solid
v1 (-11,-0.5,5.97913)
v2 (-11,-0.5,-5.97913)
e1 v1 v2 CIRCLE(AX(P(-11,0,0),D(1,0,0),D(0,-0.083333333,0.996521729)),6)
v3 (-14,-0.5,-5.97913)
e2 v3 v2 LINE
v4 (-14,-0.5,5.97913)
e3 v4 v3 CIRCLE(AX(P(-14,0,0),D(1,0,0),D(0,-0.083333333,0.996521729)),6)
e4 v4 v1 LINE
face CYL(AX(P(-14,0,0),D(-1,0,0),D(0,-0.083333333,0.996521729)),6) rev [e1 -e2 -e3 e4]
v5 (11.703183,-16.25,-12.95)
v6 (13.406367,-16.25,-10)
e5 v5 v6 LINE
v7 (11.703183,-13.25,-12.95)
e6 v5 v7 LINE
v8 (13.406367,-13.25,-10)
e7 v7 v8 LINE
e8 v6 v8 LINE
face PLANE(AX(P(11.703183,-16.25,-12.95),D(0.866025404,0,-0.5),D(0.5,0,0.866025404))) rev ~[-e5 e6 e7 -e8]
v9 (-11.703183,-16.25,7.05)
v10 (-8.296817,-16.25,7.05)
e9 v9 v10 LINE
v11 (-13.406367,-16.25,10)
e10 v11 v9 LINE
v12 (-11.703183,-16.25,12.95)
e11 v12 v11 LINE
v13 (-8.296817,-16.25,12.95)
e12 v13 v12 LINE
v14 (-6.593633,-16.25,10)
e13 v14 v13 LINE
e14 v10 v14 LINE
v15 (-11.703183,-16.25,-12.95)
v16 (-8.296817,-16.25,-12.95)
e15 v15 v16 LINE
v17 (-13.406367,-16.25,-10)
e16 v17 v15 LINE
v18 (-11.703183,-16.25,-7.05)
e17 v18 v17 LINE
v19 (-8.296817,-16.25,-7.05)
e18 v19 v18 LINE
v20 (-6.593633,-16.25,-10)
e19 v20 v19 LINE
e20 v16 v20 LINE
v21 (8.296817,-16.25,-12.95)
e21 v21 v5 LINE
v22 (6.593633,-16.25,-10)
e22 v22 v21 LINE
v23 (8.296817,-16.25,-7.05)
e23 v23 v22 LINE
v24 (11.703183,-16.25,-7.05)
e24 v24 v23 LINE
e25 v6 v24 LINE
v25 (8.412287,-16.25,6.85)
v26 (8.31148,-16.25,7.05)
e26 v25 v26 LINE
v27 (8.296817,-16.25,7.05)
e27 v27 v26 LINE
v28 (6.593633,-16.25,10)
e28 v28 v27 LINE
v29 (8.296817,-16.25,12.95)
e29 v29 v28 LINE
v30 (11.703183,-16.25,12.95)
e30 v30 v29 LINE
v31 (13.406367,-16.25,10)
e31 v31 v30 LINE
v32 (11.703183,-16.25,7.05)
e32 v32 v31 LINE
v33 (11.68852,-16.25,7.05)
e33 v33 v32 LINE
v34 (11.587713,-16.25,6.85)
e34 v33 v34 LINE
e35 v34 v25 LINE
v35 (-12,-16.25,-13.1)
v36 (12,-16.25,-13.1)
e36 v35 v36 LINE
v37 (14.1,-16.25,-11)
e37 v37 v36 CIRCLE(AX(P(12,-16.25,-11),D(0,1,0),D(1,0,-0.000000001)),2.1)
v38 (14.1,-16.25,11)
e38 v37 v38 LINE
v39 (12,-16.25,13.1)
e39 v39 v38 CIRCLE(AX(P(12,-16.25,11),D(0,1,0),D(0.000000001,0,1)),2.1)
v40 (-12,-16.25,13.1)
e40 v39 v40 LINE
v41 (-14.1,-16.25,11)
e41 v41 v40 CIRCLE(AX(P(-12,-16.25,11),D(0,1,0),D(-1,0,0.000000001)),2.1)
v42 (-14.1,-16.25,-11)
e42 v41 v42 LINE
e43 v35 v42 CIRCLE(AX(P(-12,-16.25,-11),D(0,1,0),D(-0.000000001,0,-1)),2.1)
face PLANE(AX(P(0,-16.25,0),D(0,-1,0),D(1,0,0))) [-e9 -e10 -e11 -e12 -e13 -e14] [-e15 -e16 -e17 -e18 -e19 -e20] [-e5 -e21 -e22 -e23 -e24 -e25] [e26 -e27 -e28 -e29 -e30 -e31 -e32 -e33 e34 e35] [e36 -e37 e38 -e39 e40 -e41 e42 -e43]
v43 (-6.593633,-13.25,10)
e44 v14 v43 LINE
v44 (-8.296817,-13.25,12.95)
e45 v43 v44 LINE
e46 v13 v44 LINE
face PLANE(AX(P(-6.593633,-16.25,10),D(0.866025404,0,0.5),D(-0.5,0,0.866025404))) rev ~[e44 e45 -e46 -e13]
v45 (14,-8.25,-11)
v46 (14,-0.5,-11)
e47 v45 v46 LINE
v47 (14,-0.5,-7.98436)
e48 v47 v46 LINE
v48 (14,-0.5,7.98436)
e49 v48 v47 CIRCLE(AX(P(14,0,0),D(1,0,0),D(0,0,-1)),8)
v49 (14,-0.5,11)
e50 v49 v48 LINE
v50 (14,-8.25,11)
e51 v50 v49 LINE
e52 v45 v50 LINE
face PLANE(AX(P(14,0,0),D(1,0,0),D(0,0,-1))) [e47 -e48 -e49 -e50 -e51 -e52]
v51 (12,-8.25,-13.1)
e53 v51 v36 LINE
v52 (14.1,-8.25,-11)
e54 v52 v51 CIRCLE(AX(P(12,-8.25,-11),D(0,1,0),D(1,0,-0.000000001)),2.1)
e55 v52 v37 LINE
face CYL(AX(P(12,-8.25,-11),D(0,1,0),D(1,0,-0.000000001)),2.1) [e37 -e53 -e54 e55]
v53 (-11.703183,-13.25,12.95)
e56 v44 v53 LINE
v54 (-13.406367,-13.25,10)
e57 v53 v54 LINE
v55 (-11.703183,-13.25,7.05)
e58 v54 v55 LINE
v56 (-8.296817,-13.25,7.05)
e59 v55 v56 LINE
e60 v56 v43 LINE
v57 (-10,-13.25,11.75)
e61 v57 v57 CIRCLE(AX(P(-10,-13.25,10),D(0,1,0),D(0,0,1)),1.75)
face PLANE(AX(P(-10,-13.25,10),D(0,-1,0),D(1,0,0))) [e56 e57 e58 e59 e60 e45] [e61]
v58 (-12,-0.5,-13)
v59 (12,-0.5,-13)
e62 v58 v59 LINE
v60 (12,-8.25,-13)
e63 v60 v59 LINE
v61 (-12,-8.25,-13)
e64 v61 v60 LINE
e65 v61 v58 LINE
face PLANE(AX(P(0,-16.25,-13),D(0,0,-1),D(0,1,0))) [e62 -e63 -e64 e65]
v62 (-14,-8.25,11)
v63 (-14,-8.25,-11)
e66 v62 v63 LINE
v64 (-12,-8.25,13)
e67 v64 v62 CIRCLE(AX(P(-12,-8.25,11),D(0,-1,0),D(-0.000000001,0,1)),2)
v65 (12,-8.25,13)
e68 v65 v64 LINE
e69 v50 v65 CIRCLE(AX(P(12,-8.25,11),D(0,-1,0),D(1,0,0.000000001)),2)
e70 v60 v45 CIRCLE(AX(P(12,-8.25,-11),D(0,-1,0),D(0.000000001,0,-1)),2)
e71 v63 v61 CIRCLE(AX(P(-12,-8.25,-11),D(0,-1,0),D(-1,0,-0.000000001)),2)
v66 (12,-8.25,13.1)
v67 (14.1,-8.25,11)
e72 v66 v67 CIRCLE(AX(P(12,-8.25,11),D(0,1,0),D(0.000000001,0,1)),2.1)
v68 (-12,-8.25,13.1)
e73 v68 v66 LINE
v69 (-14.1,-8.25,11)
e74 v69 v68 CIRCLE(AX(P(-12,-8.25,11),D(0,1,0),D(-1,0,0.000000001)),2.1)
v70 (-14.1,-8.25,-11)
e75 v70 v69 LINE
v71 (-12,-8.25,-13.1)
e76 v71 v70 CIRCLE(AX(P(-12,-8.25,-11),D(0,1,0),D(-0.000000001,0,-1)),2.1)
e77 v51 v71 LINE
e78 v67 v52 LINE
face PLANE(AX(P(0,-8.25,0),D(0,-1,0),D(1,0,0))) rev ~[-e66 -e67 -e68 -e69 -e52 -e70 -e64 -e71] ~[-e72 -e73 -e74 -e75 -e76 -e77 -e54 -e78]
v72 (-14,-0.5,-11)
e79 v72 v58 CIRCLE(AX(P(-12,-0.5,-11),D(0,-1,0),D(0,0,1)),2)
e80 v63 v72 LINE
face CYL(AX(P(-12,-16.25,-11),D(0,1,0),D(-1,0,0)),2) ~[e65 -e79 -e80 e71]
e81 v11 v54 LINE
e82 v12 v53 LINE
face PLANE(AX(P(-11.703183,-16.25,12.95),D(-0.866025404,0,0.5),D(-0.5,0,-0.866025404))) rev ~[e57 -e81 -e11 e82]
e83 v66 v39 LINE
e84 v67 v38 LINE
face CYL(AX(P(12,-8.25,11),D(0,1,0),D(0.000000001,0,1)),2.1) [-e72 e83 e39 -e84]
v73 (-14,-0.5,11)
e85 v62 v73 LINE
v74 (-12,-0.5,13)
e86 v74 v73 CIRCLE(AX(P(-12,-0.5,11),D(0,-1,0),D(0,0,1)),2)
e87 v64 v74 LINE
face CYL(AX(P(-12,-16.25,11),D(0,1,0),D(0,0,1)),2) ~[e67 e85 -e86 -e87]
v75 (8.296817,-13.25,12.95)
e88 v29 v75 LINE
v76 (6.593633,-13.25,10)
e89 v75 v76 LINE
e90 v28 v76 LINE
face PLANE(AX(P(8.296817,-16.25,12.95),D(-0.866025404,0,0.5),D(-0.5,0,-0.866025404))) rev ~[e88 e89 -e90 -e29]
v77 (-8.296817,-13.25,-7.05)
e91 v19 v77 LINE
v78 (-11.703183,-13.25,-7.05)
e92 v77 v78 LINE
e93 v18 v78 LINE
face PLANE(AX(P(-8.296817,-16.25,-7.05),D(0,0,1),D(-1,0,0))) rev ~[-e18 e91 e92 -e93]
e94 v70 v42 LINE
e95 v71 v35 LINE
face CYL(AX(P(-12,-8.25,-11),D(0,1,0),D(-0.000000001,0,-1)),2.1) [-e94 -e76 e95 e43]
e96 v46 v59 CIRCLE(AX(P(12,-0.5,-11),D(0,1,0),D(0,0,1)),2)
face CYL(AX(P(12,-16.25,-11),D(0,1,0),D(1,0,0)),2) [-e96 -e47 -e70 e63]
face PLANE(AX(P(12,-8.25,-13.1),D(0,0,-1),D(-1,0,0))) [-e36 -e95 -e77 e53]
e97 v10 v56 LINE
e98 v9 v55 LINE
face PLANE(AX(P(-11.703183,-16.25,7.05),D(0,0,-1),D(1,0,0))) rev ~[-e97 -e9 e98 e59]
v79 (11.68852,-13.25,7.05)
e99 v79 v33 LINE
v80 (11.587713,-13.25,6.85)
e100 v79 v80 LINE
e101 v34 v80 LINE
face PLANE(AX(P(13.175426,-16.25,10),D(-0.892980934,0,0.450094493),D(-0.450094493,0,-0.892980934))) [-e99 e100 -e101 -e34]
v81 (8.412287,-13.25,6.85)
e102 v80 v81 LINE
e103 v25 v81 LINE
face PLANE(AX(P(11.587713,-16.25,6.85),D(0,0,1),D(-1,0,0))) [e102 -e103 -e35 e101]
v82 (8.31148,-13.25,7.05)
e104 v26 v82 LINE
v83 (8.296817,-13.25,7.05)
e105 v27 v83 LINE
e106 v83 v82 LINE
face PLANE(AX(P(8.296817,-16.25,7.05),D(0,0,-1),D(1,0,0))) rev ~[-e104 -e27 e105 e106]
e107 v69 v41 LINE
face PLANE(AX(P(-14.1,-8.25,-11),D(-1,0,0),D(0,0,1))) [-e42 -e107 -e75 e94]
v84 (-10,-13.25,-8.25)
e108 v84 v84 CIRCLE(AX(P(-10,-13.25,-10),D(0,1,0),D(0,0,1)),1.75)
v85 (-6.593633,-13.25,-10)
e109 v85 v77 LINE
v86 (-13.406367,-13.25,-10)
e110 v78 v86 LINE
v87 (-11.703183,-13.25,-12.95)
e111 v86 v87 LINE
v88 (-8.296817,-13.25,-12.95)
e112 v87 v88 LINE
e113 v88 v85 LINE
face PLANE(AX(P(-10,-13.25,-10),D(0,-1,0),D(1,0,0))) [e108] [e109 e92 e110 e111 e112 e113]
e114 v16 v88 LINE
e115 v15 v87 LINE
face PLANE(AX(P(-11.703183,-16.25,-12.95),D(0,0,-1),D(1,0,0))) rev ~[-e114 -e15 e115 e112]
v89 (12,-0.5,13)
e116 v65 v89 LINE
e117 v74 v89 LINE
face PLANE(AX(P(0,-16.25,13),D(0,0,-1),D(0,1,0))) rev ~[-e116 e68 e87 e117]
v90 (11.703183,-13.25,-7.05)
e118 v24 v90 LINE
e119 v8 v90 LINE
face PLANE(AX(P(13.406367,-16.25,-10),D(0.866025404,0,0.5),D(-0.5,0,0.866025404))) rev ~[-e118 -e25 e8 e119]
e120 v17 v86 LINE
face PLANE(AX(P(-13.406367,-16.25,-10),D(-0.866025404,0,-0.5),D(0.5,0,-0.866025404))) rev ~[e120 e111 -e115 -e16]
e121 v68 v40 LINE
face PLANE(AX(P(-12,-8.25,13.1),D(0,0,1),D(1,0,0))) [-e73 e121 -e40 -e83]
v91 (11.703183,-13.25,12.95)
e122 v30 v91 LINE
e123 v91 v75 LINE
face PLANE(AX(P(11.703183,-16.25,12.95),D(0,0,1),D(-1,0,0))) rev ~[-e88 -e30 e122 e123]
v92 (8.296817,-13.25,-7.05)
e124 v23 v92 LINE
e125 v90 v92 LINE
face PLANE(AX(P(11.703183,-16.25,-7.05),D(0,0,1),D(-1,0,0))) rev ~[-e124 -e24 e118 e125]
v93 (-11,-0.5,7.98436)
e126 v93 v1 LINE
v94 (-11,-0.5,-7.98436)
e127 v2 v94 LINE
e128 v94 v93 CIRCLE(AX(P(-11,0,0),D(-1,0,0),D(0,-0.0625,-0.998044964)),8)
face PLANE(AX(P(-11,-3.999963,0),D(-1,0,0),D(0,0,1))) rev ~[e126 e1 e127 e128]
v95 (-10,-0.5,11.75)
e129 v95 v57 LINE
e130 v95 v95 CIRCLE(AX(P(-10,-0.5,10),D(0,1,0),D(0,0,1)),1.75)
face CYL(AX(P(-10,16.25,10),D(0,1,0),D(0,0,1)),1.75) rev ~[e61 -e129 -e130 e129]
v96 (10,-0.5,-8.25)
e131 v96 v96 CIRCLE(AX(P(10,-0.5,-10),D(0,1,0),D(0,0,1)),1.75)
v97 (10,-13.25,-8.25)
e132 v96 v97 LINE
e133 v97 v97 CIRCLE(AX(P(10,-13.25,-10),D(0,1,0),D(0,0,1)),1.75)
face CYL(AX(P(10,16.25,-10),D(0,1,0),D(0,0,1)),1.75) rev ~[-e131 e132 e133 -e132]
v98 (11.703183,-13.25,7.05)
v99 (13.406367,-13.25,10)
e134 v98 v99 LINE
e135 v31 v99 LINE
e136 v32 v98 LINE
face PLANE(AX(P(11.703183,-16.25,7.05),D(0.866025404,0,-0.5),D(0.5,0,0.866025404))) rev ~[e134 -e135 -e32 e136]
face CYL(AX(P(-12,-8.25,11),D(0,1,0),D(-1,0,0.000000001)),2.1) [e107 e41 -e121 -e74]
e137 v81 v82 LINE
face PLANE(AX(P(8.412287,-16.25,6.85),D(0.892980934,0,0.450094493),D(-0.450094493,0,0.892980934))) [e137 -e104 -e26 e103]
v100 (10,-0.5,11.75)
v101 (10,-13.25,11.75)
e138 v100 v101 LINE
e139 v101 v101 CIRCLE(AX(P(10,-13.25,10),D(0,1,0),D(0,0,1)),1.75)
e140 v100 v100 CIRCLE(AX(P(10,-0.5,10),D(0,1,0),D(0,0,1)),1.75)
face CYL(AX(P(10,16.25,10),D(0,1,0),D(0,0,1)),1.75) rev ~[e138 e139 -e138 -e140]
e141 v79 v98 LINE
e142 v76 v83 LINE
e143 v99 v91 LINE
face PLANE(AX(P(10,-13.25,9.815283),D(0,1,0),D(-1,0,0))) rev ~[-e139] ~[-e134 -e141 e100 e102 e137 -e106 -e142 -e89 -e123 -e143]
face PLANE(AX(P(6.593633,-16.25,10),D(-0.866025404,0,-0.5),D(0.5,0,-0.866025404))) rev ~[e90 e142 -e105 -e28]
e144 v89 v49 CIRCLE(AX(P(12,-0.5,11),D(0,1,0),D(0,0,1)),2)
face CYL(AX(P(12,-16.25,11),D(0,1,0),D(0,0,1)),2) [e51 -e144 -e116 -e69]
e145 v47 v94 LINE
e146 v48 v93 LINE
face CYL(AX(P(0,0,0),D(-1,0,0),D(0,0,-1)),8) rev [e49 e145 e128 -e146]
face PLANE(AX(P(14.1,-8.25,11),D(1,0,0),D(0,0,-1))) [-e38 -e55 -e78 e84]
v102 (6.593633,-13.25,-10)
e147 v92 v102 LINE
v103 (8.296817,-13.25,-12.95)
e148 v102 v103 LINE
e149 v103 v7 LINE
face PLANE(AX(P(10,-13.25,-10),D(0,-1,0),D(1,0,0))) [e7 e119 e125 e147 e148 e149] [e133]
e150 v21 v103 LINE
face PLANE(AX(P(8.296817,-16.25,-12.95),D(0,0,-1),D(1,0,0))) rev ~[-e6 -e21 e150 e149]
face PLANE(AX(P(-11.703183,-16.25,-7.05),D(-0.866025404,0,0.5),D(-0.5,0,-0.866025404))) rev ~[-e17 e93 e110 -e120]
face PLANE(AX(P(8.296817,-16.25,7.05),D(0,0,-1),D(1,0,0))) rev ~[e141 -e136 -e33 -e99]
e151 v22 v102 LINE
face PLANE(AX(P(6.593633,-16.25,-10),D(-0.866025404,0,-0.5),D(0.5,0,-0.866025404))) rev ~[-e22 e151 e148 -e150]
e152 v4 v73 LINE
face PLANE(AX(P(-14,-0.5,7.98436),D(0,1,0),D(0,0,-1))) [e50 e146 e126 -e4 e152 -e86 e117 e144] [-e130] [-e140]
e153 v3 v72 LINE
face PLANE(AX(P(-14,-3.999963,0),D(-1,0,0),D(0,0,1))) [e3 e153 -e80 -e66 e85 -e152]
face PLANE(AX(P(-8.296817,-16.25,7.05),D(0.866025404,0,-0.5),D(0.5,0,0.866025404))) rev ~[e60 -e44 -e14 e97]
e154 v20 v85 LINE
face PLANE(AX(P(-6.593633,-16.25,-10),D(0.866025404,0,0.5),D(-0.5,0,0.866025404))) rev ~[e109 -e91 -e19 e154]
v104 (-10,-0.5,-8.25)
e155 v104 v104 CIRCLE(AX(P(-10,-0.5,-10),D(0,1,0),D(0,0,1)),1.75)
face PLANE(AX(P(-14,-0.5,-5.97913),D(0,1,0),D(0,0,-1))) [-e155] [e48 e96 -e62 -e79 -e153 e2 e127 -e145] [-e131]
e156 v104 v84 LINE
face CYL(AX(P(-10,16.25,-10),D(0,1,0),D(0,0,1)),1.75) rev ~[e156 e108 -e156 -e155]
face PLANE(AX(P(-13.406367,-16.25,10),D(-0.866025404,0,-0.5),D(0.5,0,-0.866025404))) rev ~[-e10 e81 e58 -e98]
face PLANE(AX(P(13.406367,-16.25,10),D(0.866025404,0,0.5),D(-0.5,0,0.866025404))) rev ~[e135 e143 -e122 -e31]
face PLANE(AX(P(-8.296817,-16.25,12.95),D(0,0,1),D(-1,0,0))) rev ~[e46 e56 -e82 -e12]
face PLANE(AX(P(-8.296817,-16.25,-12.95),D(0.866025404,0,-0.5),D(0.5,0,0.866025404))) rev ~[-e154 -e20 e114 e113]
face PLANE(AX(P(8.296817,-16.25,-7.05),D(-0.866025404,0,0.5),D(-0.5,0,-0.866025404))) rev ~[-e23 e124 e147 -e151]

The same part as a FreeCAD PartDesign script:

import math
import FreeCAD as App
import Part
import Sketcher
from FreeCAD import Vector
Q = App.Units.Quantity


def edges_at(feature, points):
    """Names of the edges that pass closest to the given points."""
    edges = feature.Shape.Edges
    near = lambda p: min(range(len(edges)), key=lambda i: edges[i].distToShape(Part.Vertex(*p))[0])
    return sorted({f"Edge{near(p) + 1}" for p in points})

doc = App.newDocument("Part")
body = doc.addObject("PartDesign::Body", "Body")

# Sketch on YZ plane
sketch1 = body.newObject("Sketcher::SketchObject", "Sketch")
sketch1.AttachmentSupport = (doc.getObject("YZ_Plane"), [""])
sketch1.MapMode = "FlatFace"
sketch1.addGeometry([
    Part.LineSegment(Vector(16.25, 13, 0), Vector(-16.25, 13, 0)),  # 0
    Part.LineSegment(Vector(-16.25, 13, 0), Vector(-16.25, -13, 0)),  # 1
    Part.LineSegment(Vector(-16.25, -13, 0), Vector(16.25, -13, 0)),  # 2
    Part.LineSegment(Vector(16.25, -13, 0), Vector(16.25, 13, 0)),  # 3
    Part.Circle(Vector(0, 0, 0), Vector(0, 0, 1), 8),  # 4
], False)
sketch1.addConstraint([
    Sketcher.Constraint("Coincident", 0, 2, 1, 1),
    Sketcher.Constraint("Coincident", 1, 2, 2, 1),
    Sketcher.Constraint("Coincident", 2, 2, 3, 1),
    Sketcher.Constraint("Coincident", 3, 2, 0, 1),
    Sketcher.Constraint("Horizontal", 0),
    Sketcher.Constraint("Vertical", 1),
    Sketcher.Constraint("Horizontal", 2),
    Sketcher.Constraint("Vertical", 3),
    Sketcher.Constraint("Coincident", 4, 3, -1, 1),
    Sketcher.Constraint("Symmetric", 0, 2, 2, 2, -1, 1),
    Sketcher.Constraint("Diameter", 4, Q("16 mm")),
    Sketcher.Constraint("DistanceY", 1, 2, 1, 1, Q("26 mm")),
    Sketcher.Constraint("DistanceX", 0, 2, 0, 1, Q("32.5 mm")),
])
pad1 = body.newObject("PartDesign::Pad", "Pad")
pad1.Profile = sketch1
pad1.Length = 28
pad1.Midplane = True

# Sketch on XZ plane
sketch2 = body.newObject("Sketcher::SketchObject", "Sketch001")
sketch2.AttachmentSupport = (doc.getObject("XZ_Plane"), [""])
sketch2.MapMode = "FlatFace"
sketch2.AttachmentOffset = App.Placement(Vector(0, 0, -16.25), App.Rotation())
sketch2.addGeometry([
    Part.Circle(Vector(-10, -10, 0), Vector(0, 0, 1), 1.75),
    Part.Circle(Vector(10, -10, 0), Vector(0, 0, 1), 1.75),
    Part.Circle(Vector(10, 10, 0), Vector(0, 0, 1), 1.75),
    Part.Circle(Vector(-10, 10, 0), Vector(0, 0, 1), 1.75),
], False)
sketch2.addConstraint([
    Sketcher.Constraint("Equal", 0, 1),
    Sketcher.Constraint("Equal", 1, 2),
    Sketcher.Constraint("Equal", 2, 3),
    Sketcher.Constraint("Symmetric", 0, 3, 2, 3, -1, 1),
    Sketcher.Constraint("Symmetric", 1, 3, 3, 3, -1, 1),
    Sketcher.Constraint("Symmetric", 0, 3, 1, 3, -2),
    Sketcher.Constraint("Diameter", 0, Q("3.5 mm")),
    Sketcher.Constraint("DistanceX", 0, 3, -1, 1, Q("10 mm")),
    Sketcher.Constraint("DistanceY", 0, 3, -1, 1, Q("10 mm")),
])
pocket1 = body.newObject("PartDesign::Pocket", "Pocket")
pocket1.Profile = sketch2
pocket1.Length = 72
pocket1.Reversed = True

# Sketch on YZ plane
sketch3 = body.newObject("Sketcher::SketchObject", "Sketch002")
sketch3.AttachmentSupport = (doc.getObject("YZ_Plane"), [""])
sketch3.MapMode = "FlatFace"
sketch3.AttachmentOffset = App.Placement(Vector(0, 0, -14), App.Rotation())
sketch3.addGeometry([
    Part.LineSegment(Vector(16.25, -13, 0), Vector(-0.5, -13, 0)),
    Part.LineSegment(Vector(-0.5, -13, 0), Vector(-0.5, 13, 0)),
    Part.LineSegment(Vector(-0.5, 13, 0), Vector(16.25, 13, 0)),
    Part.LineSegment(Vector(16.25, 13, 0), Vector(16.25, -13, 0)),
], False)
sketch3.addConstraint([
    Sketcher.Constraint("Coincident", 0, 2, 1, 1),
    Sketcher.Constraint("Coincident", 1, 2, 2, 1),
    Sketcher.Constraint("Coincident", 2, 2, 3, 1),
    Sketcher.Constraint("Coincident", 3, 2, 0, 1),
    Sketcher.Constraint("Horizontal", 0),
    Sketcher.Constraint("Vertical", 1),
    Sketcher.Constraint("Horizontal", 2),
    Sketcher.Constraint("Vertical", 3),
    Sketcher.Constraint("DistanceY", 1, 1, 1, 2, Q("26 mm")),
    Sketcher.Constraint("DistanceY", 0, 2, -1, 1, Q("13 mm")),
    Sketcher.Constraint("DistanceX", 0, 2, 0, 1, Q("16.75 mm")),
    Sketcher.Constraint("DistanceX", 0, 2, -1, 1, Q("0.5 mm")),
])
pocket2 = body.newObject("PartDesign::Pocket", "Pocket001")
pocket2.Profile = sketch3
pocket2.Length = 32
pocket2.Reversed = True
doc.recompute()

fillet = body.newObject("PartDesign::Fillet", "Fillet")
fillet.Base = (pocket2, edges_at(pocket2, [
    (-14, -8.375, 13),
    (14, -8.375, 13),
    (14, -8.375, -13),
    (-14, -8.375, -13),
]))
fillet.Radius = 2

# Sketch on YZ plane
sketch4 = body.newObject("Sketcher::SketchObject", "Sketch003")
sketch4.AttachmentSupport = (doc.getObject("YZ_Plane"), [""])
sketch4.MapMode = "FlatFace"
sketch4.AttachmentOffset = App.Placement(Vector(0, 0, -14), App.Rotation())
sketch4.addGeometry([
    Part.LineSegment(Vector(-0.5, 5.97913, 0), Vector(-0.5, 7.98436, 0)),
    Part.ArcOfCircle(Part.Circle(Vector(0, 0, 0), Vector(0, 0, 1), 8), math.radians(93.583322), math.radians(266.416678)),
    Part.LineSegment(Vector(-0.5, -7.98436, 0), Vector(-0.5, -5.97913, 0)),
    Part.ArcOfCircle(Part.Circle(Vector(0, 0, 0), Vector(0, 0, 1), 6), math.radians(94.780192), math.radians(265.219808)),
], False)
sketch4.addConstraint([
    Sketcher.Constraint("Coincident", 0, 2, 1, 1),
    Sketcher.Constraint("Coincident", 1, 2, 2, 1),
    Sketcher.Constraint("Coincident", 2, 2, 3, 2),
    Sketcher.Constraint("Coincident", 3, 1, 0, 1),
    Sketcher.Constraint("Vertical", 0),
    Sketcher.Constraint("Vertical", 2),
    Sketcher.Constraint("Coincident", 1, 3, -1, 1),
    Sketcher.Constraint("Coincident", 3, 3, -1, 1),
    Sketcher.Constraint("Vertical", 0, 2, 1, 2),
    Sketcher.Constraint("Radius", 1, Q("8 mm")),
    Sketcher.Constraint("Radius", 3, Q("6 mm")),
    Sketcher.Constraint("DistanceX", 0, 2, -1, 1, Q("0.5 mm")),
])
pad2 = body.newObject("PartDesign::Pad", "Pad001")
pad2.Profile = sketch4
pad2.Length = 3

# Sketch on XZ plane
sketch5 = body.newObject("Sketcher::SketchObject", "Sketch004")
sketch5.AttachmentSupport = (doc.getObject("XZ_Plane"), [""])
sketch5.MapMode = "FlatFace"
sketch5.AttachmentOffset = App.Placement(Vector(0, 0, 16.25), App.Rotation())
sketch5.addGeometry([
    Part.LineSegment(Vector(-6.593633, 10, 0), Vector(-8.296817, 12.95, 0)),  # 0
    Part.LineSegment(Vector(-8.296817, 12.95, 0), Vector(-11.703183, 12.95, 0)),  # 1
    Part.LineSegment(Vector(-11.703183, 12.95, 0), Vector(-13.406367, 10, 0)),  # 2
    Part.LineSegment(Vector(-13.406367, 10, 0), Vector(-11.703183, 7.05, 0)),  # 3
    Part.LineSegment(Vector(-11.703183, 7.05, 0), Vector(-8.296817, 7.05, 0)),  # 4
    Part.LineSegment(Vector(-8.296817, 7.05, 0), Vector(-6.593633, 10, 0)),  # 5
    Part.LineSegment(Vector(6.824574, 10, 0), Vector(8.412287, 6.85, 0)),  # 6
    Part.LineSegment(Vector(8.412287, 6.85, 0), Vector(11.587713, 6.85, 0)),  # 7
    Part.LineSegment(Vector(11.587713, 6.85, 0), Vector(13.175426, 10, 0)),  # 8
    Part.LineSegment(Vector(13.175426, 10, 0), Vector(11.587713, 12.75, 0)),  # 9
    Part.LineSegment(Vector(11.587713, 12.75, 0), Vector(8.412287, 12.75, 0)),  # 10
    Part.LineSegment(Vector(8.412287, 12.75, 0), Vector(6.824574, 10, 0)),  # 11
    Part.LineSegment(Vector(6.824574, -10, 0), Vector(8.412287, -12.75, 0)),  # 12
    Part.LineSegment(Vector(8.412287, -12.75, 0), Vector(11.587713, -12.75, 0)),  # 13
    Part.LineSegment(Vector(11.587713, -12.75, 0), Vector(13.175426, -10, 0)),  # 14
    Part.LineSegment(Vector(13.175426, -10, 0), Vector(11.587713, -7.25, 0)),  # 15
    Part.LineSegment(Vector(11.587713, -7.25, 0), Vector(8.412287, -7.25, 0)),  # 16
    Part.LineSegment(Vector(8.412287, -7.25, 0), Vector(6.824574, -10, 0)),  # 17
    Part.LineSegment(Vector(-6.824574, -10, 0), Vector(-8.412287, -7.25, 0)),  # 18
    Part.LineSegment(Vector(-8.412287, -7.25, 0), Vector(-11.587713, -7.25, 0)),  # 19
    Part.LineSegment(Vector(-11.587713, -7.25, 0), Vector(-13.175426, -10, 0)),  # 20
    Part.LineSegment(Vector(-13.175426, -10, 0), Vector(-11.587713, -12.75, 0)),  # 21
    Part.LineSegment(Vector(-11.587713, -12.75, 0), Vector(-8.412287, -12.75, 0)),  # 22
    Part.LineSegment(Vector(-8.412287, -12.75, 0), Vector(-6.824574, -10, 0)),  # 23
], False)
sketch5.addConstraint([
    Sketcher.Constraint("Coincident", 0, 2, 1, 1),
    Sketcher.Constraint("Coincident", 1, 2, 2, 1),
    Sketcher.Constraint("Coincident", 2, 2, 3, 1),
    Sketcher.Constraint("Coincident", 3, 2, 4, 1),
    Sketcher.Constraint("Coincident", 4, 2, 5, 1),
    Sketcher.Constraint("Coincident", 5, 2, 0, 1),
    Sketcher.Constraint("Coincident", 6, 2, 7, 1),
    Sketcher.Constraint("Coincident", 7, 2, 8, 1),
    Sketcher.Constraint("Coincident", 8, 2, 9, 1),
    Sketcher.Constraint("Coincident", 9, 2, 10, 1),
    Sketcher.Constraint("Coincident", 10, 2, 11, 1),
    Sketcher.Constraint("Coincident", 11, 2, 6, 1),
    Sketcher.Constraint("Coincident", 12, 2, 13, 1),
    Sketcher.Constraint("Coincident", 13, 2, 14, 1),
    Sketcher.Constraint("Coincident", 14, 2, 15, 1),
    Sketcher.Constraint("Coincident", 15, 2, 16, 1),
    Sketcher.Constraint("Coincident", 16, 2, 17, 1),
    Sketcher.Constraint("Coincident", 17, 2, 12, 1),
    Sketcher.Constraint("Coincident", 18, 2, 19, 1),
    Sketcher.Constraint("Coincident", 19, 2, 20, 1),
    Sketcher.Constraint("Coincident", 20, 2, 21, 1),
    Sketcher.Constraint("Coincident", 21, 2, 22, 1),
    Sketcher.Constraint("Coincident", 22, 2, 23, 1),
    Sketcher.Constraint("Coincident", 23, 2, 18, 1),
    Sketcher.Constraint("Horizontal", 1),
    Sketcher.Constraint("Horizontal", 4),
    Sketcher.Constraint("Horizontal", 7),
    Sketcher.Constraint("Horizontal", 10),
    Sketcher.Constraint("Horizontal", 13),
    Sketcher.Constraint("Horizontal", 16),
    Sketcher.Constraint("Horizontal", 19),
    Sketcher.Constraint("Horizontal", 22),
    Sketcher.Constraint("Symmetric", 8, 2, 20, 2, -1, 1),
    Sketcher.Constraint("Symmetric", 9, 2, 21, 2, -1, 1),
    Sketcher.Constraint("Symmetric", 11, 2, 23, 2, -1, 1),
    Sketcher.Constraint("Symmetric", 16, 2, 18, 2, -2),
    Sketcher.Constraint("Symmetric", 14, 2, 20, 2, -2),
    Sketcher.Constraint("Symmetric", 13, 2, 21, 2, -2),
    Sketcher.Constraint("Symmetric", 17, 2, 23, 2, -2),
    Sketcher.Constraint("Parallel", 0, 3),
    Sketcher.Constraint("Parallel", 2, 5),
    Sketcher.Constraint("Parallel", 3, 9),
    Sketcher.Constraint("Parallel", 5, 11),
    Sketcher.Constraint("Parallel", 9, 12),
    Sketcher.Constraint("Parallel", 11, 14),
    Sketcher.Constraint("Parallel", 12, 15),
    Sketcher.Constraint("Parallel", 14, 17),
    Sketcher.Constraint("Parallel", 17, 20),
    Sketcher.Constraint("Parallel", 20, 23),
    Sketcher.Constraint("Horizontal", 2, 2, 5, 2),
    Sketcher.Constraint("Horizontal", 5, 2, 8, 2),
    Sketcher.Constraint("Horizontal", 8, 2, 11, 2),
    Sketcher.Constraint("Vertical", 1, 2, 3, 2),
    Sketcher.Constraint("Vertical", 7, 2, 9, 2),
    Sketcher.Constraint("Vertical", 6, 2, 10, 2),
    Sketcher.Constraint("Vertical", 13, 2, 15, 2),
    Sketcher.Constraint("Angle", 0, Q("120 deg")),
    Sketcher.Constraint("DistanceY", -1, 1, 2, 2, Q("10 mm")),
    Sketcher.Constraint("DistanceX", 20, 2, 17, 2, Q("20 mm")),
    Sketcher.Constraint("DistanceY", 3, 2, 1, 2, Q("5.9 mm")),
    Sketcher.Constraint("DistanceY", 6, 2, 4, 2, Q("0.2 mm")),
    Sketcher.Constraint("DistanceY", 7, 2, 9, 2, Q("5.9 mm")),
    Sketcher.Constraint("DistanceX", 1, 2, 1, 1, Q("3.406367 mm")),
    Sketcher.Constraint("DistanceX", 7, 1, 7, 2, Q("3.175426 mm")),
    Sketcher.Constraint("DistanceX", 5, 2, 6, 2, Q("15.00592 mm")),
])
pocket3 = body.newObject("PartDesign::Pocket", "Pocket002")
pocket3.Profile = sketch5
pocket3.Length = 3

# Sketch on XZ plane
sketch6 = body.newObject("Sketcher::SketchObject", "Sketch005")
sketch6.AttachmentSupport = (doc.getObject("XZ_Plane"), [""])
sketch6.MapMode = "FlatFace"
sketch6.AttachmentOffset = App.Placement(Vector(0, 0, 16.25), App.Rotation())
sketch6.addGeometry([
    Part.LineSegment(Vector(-12, -15.5, 0), Vector(12, -15.5, 0)),  # 0
    Part.ArcOfCircle(Part.Circle(Vector(12, -11, 0), Vector(0, 0, 1), 4.5), math.radians(-90), math.radians(0)),  # 1
    Part.LineSegment(Vector(16.5, -11, 0), Vector(16.5, 11, 0)),  # 2
    Part.ArcOfCircle(Part.Circle(Vector(12, 11, 0), Vector(0, 0, 1), 4.5), math.radians(0), math.radians(90)),  # 3
    Part.LineSegment(Vector(12, 15.5, 0), Vector(-12, 15.5, 0)),  # 4
    Part.ArcOfCircle(Part.Circle(Vector(-12, 11, 0), Vector(0, 0, 1), 4.5), math.radians(90), math.radians(180)),  # 5
    Part.LineSegment(Vector(-16.5, 11, 0), Vector(-16.5, -11, 0)),  # 6
    Part.ArcOfCircle(Part.Circle(Vector(-12, -11, 0), Vector(0, 0, 1), 4.5), math.radians(-180), math.radians(-90)),  # 7
    Part.LineSegment(Vector(12, -13, 0), Vector(-12, -13, 0)),  # 8
    Part.ArcOfCircle(Part.Circle(Vector(-12, -11, 0), Vector(0, 0, 1), 2), math.radians(-180), math.radians(-90)),  # 9
    Part.LineSegment(Vector(-14, -11, 0), Vector(-14, 11, 0)),  # 10
    Part.ArcOfCircle(Part.Circle(Vector(-12, 11, 0), Vector(0, 0, 1), 2), math.radians(90), math.radians(180)),  # 11
    Part.LineSegment(Vector(-12, 13, 0), Vector(12, 13, 0)),  # 12
    Part.ArcOfCircle(Part.Circle(Vector(12, 11, 0), Vector(0, 0, 1), 2), math.radians(0), math.radians(90)),  # 13
    Part.LineSegment(Vector(14, 11, 0), Vector(14, -11, 0)),  # 14
    Part.ArcOfCircle(Part.Circle(Vector(12, -11, 0), Vector(0, 0, 1), 2), math.radians(-90), math.radians(0)),  # 15
], False)
sketch6.addConstraint([
    Sketcher.Constraint("Tangent", 0, 2, 1, 1),
    Sketcher.Constraint("Tangent", 1, 2, 2, 1),
    Sketcher.Constraint("Tangent", 2, 2, 3, 1),
    Sketcher.Constraint("Tangent", 3, 2, 4, 1),
    Sketcher.Constraint("Tangent", 4, 2, 5, 1),
    Sketcher.Constraint("Tangent", 5, 2, 6, 1),
    Sketcher.Constraint("Tangent", 6, 2, 7, 1),
    Sketcher.Constraint("Tangent", 7, 2, 0, 1),
    Sketcher.Constraint("Tangent", 8, 2, 9, 2),
    Sketcher.Constraint("Tangent", 9, 1, 10, 1),
    Sketcher.Constraint("Tangent", 10, 2, 11, 2),
    Sketcher.Constraint("Tangent", 11, 1, 12, 1),
    Sketcher.Constraint("Tangent", 12, 2, 13, 2),
    Sketcher.Constraint("Tangent", 13, 1, 14, 1),
    Sketcher.Constraint("Tangent", 14, 2, 15, 2),
    Sketcher.Constraint("Tangent", 15, 1, 8, 1),
    Sketcher.Constraint("Horizontal", 0),
    Sketcher.Constraint("Vertical", 2),
    Sketcher.Constraint("Horizontal", 4),
    Sketcher.Constraint("Vertical", 6),
    Sketcher.Constraint("Horizontal", 8),
    Sketcher.Constraint("Vertical", 10),
    Sketcher.Constraint("Horizontal", 12),
    Sketcher.Constraint("Vertical", 14),
    Sketcher.Constraint("Coincident", 9, 3, 7, 3),
    Sketcher.Constraint("Coincident", 11, 3, 5, 3),
    Sketcher.Constraint("Coincident", 13, 3, 3, 3),
    Sketcher.Constraint("Equal", 1, 3),
    Sketcher.Constraint("Equal", 3, 5),
    Sketcher.Constraint("Equal", 5, 7),
    Sketcher.Constraint("Equal", 13, 15),
    Sketcher.Constraint("Symmetric", 1, 3, 5, 3, -1, 1),
    Sketcher.Constraint("Radius", 9, Q("2 mm")),
    Sketcher.Constraint("Radius", 1, Q("4.5 mm")),
    Sketcher.Constraint("DistanceX", 0, 1, 0, 2, Q("24 mm")),
    Sketcher.Constraint("DistanceY", 2, 1, 2, 2, Q("22 mm")),
])
pad3 = body.newObject("PartDesign::Pad", "Pad002")
pad3.Profile = sketch6
pad3.Length = 8
pad3.Reversed = True

# Sketch on XZ plane
sketch7 = body.newObject("Sketcher::SketchObject", "Sketch006")
sketch7.AttachmentSupport = (doc.getObject("XZ_Plane"), [""])
sketch7.MapMode = "FlatFace"
sketch7.AttachmentOffset = App.Placement(Vector(0, 0, 16.25), App.Rotation())
sketch7.addGeometry([
    Part.LineSegment(Vector(-6.593633, 10, 0), Vector(-8.296817, 12.95, 0)),  # 0
    Part.LineSegment(Vector(-8.296817, 12.95, 0), Vector(-11.703183, 12.95, 0)),  # 1
    Part.LineSegment(Vector(-11.703183, 12.95, 0), Vector(-13.406367, 10, 0)),  # 2
    Part.LineSegment(Vector(-13.406367, 10, 0), Vector(-11.703183, 7.05, 0)),  # 3
    Part.LineSegment(Vector(-11.703183, 7.05, 0), Vector(-8.296817, 7.05, 0)),  # 4
    Part.LineSegment(Vector(-8.296817, 7.05, 0), Vector(-6.593633, 10, 0)),  # 5
    Part.LineSegment(Vector(13.406367, 10, 0), Vector(11.703183, 12.95, 0)),  # 6
    Part.LineSegment(Vector(11.703183, 12.95, 0), Vector(8.296817, 12.95, 0)),  # 7
    Part.LineSegment(Vector(8.296817, 12.95, 0), Vector(6.593633, 10, 0)),  # 8
    Part.LineSegment(Vector(6.593633, 10, 0), Vector(8.296817, 7.05, 0)),  # 9
    Part.LineSegment(Vector(8.296817, 7.05, 0), Vector(11.703183, 7.05, 0)),  # 10
    Part.LineSegment(Vector(11.703183, 7.05, 0), Vector(13.406367, 10, 0)),  # 11
    Part.LineSegment(Vector(-6.593633, -10, 0), Vector(-8.296817, -7.05, 0)),  # 12
    Part.LineSegment(Vector(-8.296817, -7.05, 0), Vector(-11.703183, -7.05, 0)),  # 13
    Part.LineSegment(Vector(-11.703183, -7.05, 0), Vector(-13.406367, -10, 0)),  # 14
    Part.LineSegment(Vector(-13.406367, -10, 0), Vector(-11.703183, -12.95, 0)),  # 15
    Part.LineSegment(Vector(-11.703183, -12.95, 0), Vector(-8.296817, -12.95, 0)),  # 16
    Part.LineSegment(Vector(-8.296817, -12.95, 0), Vector(-6.593633, -10, 0)),  # 17
    Part.LineSegment(Vector(13.406367, -10, 0), Vector(11.703183, -7.05, 0)),  # 18
    Part.LineSegment(Vector(11.703183, -7.05, 0), Vector(8.296817, -7.05, 0)),  # 19
    Part.LineSegment(Vector(8.296817, -7.05, 0), Vector(6.593633, -10, 0)),  # 20
    Part.LineSegment(Vector(6.593633, -10, 0), Vector(8.296817, -12.95, 0)),  # 21
    Part.LineSegment(Vector(8.296817, -12.95, 0), Vector(11.703183, -12.95, 0)),  # 22
    Part.LineSegment(Vector(11.703183, -12.95, 0), Vector(13.406367, -10, 0)),  # 23
], False)
sketch7.addConstraint([
    Sketcher.Constraint("Coincident", 0, 2, 1, 1),
    Sketcher.Constraint("Coincident", 1, 2, 2, 1),
    Sketcher.Constraint("Coincident", 2, 2, 3, 1),
    Sketcher.Constraint("Coincident", 3, 2, 4, 1),
    Sketcher.Constraint("Coincident", 4, 2, 5, 1),
    Sketcher.Constraint("Coincident", 5, 2, 0, 1),
    Sketcher.Constraint("Coincident", 6, 2, 7, 1),
    Sketcher.Constraint("Coincident", 7, 2, 8, 1),
    Sketcher.Constraint("Coincident", 8, 2, 9, 1),
    Sketcher.Constraint("Coincident", 9, 2, 10, 1),
    Sketcher.Constraint("Coincident", 10, 2, 11, 1),
    Sketcher.Constraint("Coincident", 11, 2, 6, 1),
    Sketcher.Constraint("Coincident", 12, 2, 13, 1),
    Sketcher.Constraint("Coincident", 13, 2, 14, 1),
    Sketcher.Constraint("Coincident", 14, 2, 15, 1),
    Sketcher.Constraint("Coincident", 15, 2, 16, 1),
    Sketcher.Constraint("Coincident", 16, 2, 17, 1),
    Sketcher.Constraint("Coincident", 17, 2, 12, 1),
    Sketcher.Constraint("Coincident", 18, 2, 19, 1),
    Sketcher.Constraint("Coincident", 19, 2, 20, 1),
    Sketcher.Constraint("Coincident", 20, 2, 21, 1),
    Sketcher.Constraint("Coincident", 21, 2, 22, 1),
    Sketcher.Constraint("Coincident", 22, 2, 23, 1),
    Sketcher.Constraint("Coincident", 23, 2, 18, 1),
    Sketcher.Constraint("Horizontal", 1),
    Sketcher.Constraint("Horizontal", 4),
    Sketcher.Constraint("Horizontal", 7),
    Sketcher.Constraint("Horizontal", 10),
    Sketcher.Constraint("Horizontal", 13),
    Sketcher.Constraint("Horizontal", 16),
    Sketcher.Constraint("Horizontal", 19),
    Sketcher.Constraint("Horizontal", 22),
    Sketcher.Constraint("Symmetric", 9, 2, 12, 2, -1, 1),
    Sketcher.Constraint("Symmetric", 11, 2, 14, 2, -1, 1),
    Sketcher.Constraint("Symmetric", 6, 2, 15, 2, -1, 1),
    Sketcher.Constraint("Symmetric", 8, 2, 17, 2, -1, 1),
    Sketcher.Constraint("Symmetric", 3, 2, 18, 2, -1, 1),
    Sketcher.Constraint("Symmetric", 5, 2, 20, 2, -1, 1),
    Sketcher.Constraint("Symmetric", 0, 2, 21, 2, -1, 1),
    Sketcher.Constraint("Symmetric", 2, 2, 23, 2, -1, 1),
    Sketcher.Constraint("Symmetric", 1, 2, 6, 2, -2),
    Sketcher.Constraint("Symmetric", 5, 2, 8, 2, -2),
    Sketcher.Constraint("Symmetric", 4, 2, 9, 2, -2),
    Sketcher.Constraint("Symmetric", 2, 2, 11, 2, -2),
    Sketcher.Constraint("Parallel", 0, 3),
    Sketcher.Constraint("Parallel", 2, 5),
    Sketcher.Constraint("Parallel", 3, 6),
    Sketcher.Constraint("Parallel", 5, 8),
    Sketcher.Constraint("Parallel", 8, 11),
    Sketcher.Constraint("Parallel", 11, 14),
    Sketcher.Constraint("Parallel", 14, 17),
    Sketcher.Constraint("Parallel", 17, 20),
    Sketcher.Constraint("Parallel", 20, 23),
    Sketcher.Constraint("Horizontal", 2, 2, 5, 2),
    Sketcher.Constraint("Vertical", 1, 2, 3, 2),
    Sketcher.Constraint("Angle", 0, Q("120 deg")),
    Sketcher.Constraint("DistanceY", -1, 1, 2, 2, Q("10 mm")),
    Sketcher.Constraint("DistanceX", 0, 2, 6, 2, Q("20 mm")),
    Sketcher.Constraint("DistanceY", 3, 2, 1, 2, Q("5.9 mm")),
    Sketcher.Constraint("DistanceX", 1, 2, 1, 1, Q("3.406367 mm")),
])
pocket4 = body.newObject("PartDesign::Pocket", "Pocket003")
pocket4.Profile = sketch7
pocket4.Length = 3

# Sketch on XZ plane
sketch8 = body.newObject("Sketcher::SketchObject", "Sketch007")
sketch8.AttachmentSupport = (doc.getObject("XZ_Plane"), [""])
sketch8.MapMode = "FlatFace"
sketch8.AttachmentOffset = App.Placement(Vector(0, 0, 8.25), App.Rotation())
sketch8.addGeometry([
    Part.LineSegment(Vector(-12, 15.7, 0), Vector(12, 15.7, 0)),  # 0
    Part.ArcOfCircle(Part.Circle(Vector(12, 11, 0), Vector(0, 0, 1), 4.7), math.radians(0), math.radians(90)),  # 1
    Part.LineSegment(Vector(16.7, 11, 0), Vector(16.7, -11, 0)),  # 2
    Part.ArcOfCircle(Part.Circle(Vector(12, -11, 0), Vector(0, 0, 1), 4.7), math.radians(-90), math.radians(0)),  # 3
    Part.LineSegment(Vector(12, -15.7, 0), Vector(-12, -15.7, 0)),  # 4
    Part.ArcOfCircle(Part.Circle(Vector(-12, -11, 0), Vector(0, 0, 1), 4.7), math.radians(180), math.radians(270)),  # 5
    Part.LineSegment(Vector(-16.7, -11, 0), Vector(-16.7, 11, 0)),  # 6
    Part.ArcOfCircle(Part.Circle(Vector(-12, 11, 0), Vector(0, 0, 1), 4.7), math.radians(90), math.radians(180)),  # 7
    Part.LineSegment(Vector(-14.1, 11, 0), Vector(-14.1, -11, 0)),  # 8
    Part.ArcOfCircle(Part.Circle(Vector(-12, -11, 0), Vector(0, 0, 1), 2.1), math.radians(-180), math.radians(-90)),  # 9
    Part.LineSegment(Vector(-12, -13.1, 0), Vector(12, -13.1, 0)),  # 10
    Part.ArcOfCircle(Part.Circle(Vector(12, -11, 0), Vector(0, 0, 1), 2.1), math.radians(-90), math.radians(0)),  # 11
    Part.LineSegment(Vector(14.1, -11, 0), Vector(14.1, 11, 0)),  # 12
    Part.ArcOfCircle(Part.Circle(Vector(12, 11, 0), Vector(0, 0, 1), 2.1), math.radians(0), math.radians(90)),  # 13
    Part.LineSegment(Vector(12, 13.1, 0), Vector(-12, 13.1, 0)),  # 14
    Part.ArcOfCircle(Part.Circle(Vector(-12, 11, 0), Vector(0, 0, 1), 2.1), math.radians(90), math.radians(180)),  # 15
], False)
sketch8.addConstraint([
    Sketcher.Constraint("Tangent", 0, 2, 1, 2),
    Sketcher.Constraint("Tangent", 1, 1, 2, 1),
    Sketcher.Constraint("Tangent", 2, 2, 3, 2),
    Sketcher.Constraint("Tangent", 3, 1, 4, 1),
    Sketcher.Constraint("Tangent", 4, 2, 5, 2),
    Sketcher.Constraint("Tangent", 5, 1, 6, 1),
    Sketcher.Constraint("Tangent", 6, 2, 7, 2),
    Sketcher.Constraint("Tangent", 7, 1, 0, 1),
    Sketcher.Constraint("Tangent", 8, 2, 9, 1),
    Sketcher.Constraint("Tangent", 9, 2, 10, 1),
    Sketcher.Constraint("Tangent", 10, 2, 11, 1),
    Sketcher.Constraint("Tangent", 11, 2, 12, 1),
    Sketcher.Constraint("Tangent", 12, 2, 13, 1),
    Sketcher.Constraint("Tangent", 13, 2, 14, 1),
    Sketcher.Constraint("Tangent", 14, 2, 15, 1),
    Sketcher.Constraint("Tangent", 15, 2, 8, 1),
    Sketcher.Constraint("Horizontal", 0),
    Sketcher.Constraint("Vertical", 2),
    Sketcher.Constraint("Horizontal", 4),
    Sketcher.Constraint("Vertical", 6),
    Sketcher.Constraint("Vertical", 8),
    Sketcher.Constraint("Horizontal", 10),
    Sketcher.Constraint("Vertical", 12),
    Sketcher.Constraint("Horizontal", 14),
    Sketcher.Constraint("Coincident", 9, 3, 5, 3),
    Sketcher.Constraint("Coincident", 11, 3, 3, 3),
    Sketcher.Constraint("Coincident", 13, 3, 1, 3),
    Sketcher.Constraint("Equal", 1, 3),
    Sketcher.Constraint("Equal", 3, 5),
    Sketcher.Constraint("Equal", 5, 7),
    Sketcher.Constraint("Equal", 13, 15),
    Sketcher.Constraint("Symmetric", 1, 3, 5, 3, -1, 1),
    Sketcher.Constraint("Radius", 1, Q("4.7 mm")),
    Sketcher.Constraint("Radius", 9, Q("2.1 mm")),
    Sketcher.Constraint("DistanceX", 0, 1, 0, 2, Q("24 mm")),
    Sketcher.Constraint("DistanceY", 2, 2, 2, 1, Q("22 mm")),
])
pocket5 = body.newObject("PartDesign::Pocket", "Pocket004")
pocket5.Profile = sketch8
pocket5.Type = "ThroughAll"
pocket5.Reversed = True

doc.recompute()
